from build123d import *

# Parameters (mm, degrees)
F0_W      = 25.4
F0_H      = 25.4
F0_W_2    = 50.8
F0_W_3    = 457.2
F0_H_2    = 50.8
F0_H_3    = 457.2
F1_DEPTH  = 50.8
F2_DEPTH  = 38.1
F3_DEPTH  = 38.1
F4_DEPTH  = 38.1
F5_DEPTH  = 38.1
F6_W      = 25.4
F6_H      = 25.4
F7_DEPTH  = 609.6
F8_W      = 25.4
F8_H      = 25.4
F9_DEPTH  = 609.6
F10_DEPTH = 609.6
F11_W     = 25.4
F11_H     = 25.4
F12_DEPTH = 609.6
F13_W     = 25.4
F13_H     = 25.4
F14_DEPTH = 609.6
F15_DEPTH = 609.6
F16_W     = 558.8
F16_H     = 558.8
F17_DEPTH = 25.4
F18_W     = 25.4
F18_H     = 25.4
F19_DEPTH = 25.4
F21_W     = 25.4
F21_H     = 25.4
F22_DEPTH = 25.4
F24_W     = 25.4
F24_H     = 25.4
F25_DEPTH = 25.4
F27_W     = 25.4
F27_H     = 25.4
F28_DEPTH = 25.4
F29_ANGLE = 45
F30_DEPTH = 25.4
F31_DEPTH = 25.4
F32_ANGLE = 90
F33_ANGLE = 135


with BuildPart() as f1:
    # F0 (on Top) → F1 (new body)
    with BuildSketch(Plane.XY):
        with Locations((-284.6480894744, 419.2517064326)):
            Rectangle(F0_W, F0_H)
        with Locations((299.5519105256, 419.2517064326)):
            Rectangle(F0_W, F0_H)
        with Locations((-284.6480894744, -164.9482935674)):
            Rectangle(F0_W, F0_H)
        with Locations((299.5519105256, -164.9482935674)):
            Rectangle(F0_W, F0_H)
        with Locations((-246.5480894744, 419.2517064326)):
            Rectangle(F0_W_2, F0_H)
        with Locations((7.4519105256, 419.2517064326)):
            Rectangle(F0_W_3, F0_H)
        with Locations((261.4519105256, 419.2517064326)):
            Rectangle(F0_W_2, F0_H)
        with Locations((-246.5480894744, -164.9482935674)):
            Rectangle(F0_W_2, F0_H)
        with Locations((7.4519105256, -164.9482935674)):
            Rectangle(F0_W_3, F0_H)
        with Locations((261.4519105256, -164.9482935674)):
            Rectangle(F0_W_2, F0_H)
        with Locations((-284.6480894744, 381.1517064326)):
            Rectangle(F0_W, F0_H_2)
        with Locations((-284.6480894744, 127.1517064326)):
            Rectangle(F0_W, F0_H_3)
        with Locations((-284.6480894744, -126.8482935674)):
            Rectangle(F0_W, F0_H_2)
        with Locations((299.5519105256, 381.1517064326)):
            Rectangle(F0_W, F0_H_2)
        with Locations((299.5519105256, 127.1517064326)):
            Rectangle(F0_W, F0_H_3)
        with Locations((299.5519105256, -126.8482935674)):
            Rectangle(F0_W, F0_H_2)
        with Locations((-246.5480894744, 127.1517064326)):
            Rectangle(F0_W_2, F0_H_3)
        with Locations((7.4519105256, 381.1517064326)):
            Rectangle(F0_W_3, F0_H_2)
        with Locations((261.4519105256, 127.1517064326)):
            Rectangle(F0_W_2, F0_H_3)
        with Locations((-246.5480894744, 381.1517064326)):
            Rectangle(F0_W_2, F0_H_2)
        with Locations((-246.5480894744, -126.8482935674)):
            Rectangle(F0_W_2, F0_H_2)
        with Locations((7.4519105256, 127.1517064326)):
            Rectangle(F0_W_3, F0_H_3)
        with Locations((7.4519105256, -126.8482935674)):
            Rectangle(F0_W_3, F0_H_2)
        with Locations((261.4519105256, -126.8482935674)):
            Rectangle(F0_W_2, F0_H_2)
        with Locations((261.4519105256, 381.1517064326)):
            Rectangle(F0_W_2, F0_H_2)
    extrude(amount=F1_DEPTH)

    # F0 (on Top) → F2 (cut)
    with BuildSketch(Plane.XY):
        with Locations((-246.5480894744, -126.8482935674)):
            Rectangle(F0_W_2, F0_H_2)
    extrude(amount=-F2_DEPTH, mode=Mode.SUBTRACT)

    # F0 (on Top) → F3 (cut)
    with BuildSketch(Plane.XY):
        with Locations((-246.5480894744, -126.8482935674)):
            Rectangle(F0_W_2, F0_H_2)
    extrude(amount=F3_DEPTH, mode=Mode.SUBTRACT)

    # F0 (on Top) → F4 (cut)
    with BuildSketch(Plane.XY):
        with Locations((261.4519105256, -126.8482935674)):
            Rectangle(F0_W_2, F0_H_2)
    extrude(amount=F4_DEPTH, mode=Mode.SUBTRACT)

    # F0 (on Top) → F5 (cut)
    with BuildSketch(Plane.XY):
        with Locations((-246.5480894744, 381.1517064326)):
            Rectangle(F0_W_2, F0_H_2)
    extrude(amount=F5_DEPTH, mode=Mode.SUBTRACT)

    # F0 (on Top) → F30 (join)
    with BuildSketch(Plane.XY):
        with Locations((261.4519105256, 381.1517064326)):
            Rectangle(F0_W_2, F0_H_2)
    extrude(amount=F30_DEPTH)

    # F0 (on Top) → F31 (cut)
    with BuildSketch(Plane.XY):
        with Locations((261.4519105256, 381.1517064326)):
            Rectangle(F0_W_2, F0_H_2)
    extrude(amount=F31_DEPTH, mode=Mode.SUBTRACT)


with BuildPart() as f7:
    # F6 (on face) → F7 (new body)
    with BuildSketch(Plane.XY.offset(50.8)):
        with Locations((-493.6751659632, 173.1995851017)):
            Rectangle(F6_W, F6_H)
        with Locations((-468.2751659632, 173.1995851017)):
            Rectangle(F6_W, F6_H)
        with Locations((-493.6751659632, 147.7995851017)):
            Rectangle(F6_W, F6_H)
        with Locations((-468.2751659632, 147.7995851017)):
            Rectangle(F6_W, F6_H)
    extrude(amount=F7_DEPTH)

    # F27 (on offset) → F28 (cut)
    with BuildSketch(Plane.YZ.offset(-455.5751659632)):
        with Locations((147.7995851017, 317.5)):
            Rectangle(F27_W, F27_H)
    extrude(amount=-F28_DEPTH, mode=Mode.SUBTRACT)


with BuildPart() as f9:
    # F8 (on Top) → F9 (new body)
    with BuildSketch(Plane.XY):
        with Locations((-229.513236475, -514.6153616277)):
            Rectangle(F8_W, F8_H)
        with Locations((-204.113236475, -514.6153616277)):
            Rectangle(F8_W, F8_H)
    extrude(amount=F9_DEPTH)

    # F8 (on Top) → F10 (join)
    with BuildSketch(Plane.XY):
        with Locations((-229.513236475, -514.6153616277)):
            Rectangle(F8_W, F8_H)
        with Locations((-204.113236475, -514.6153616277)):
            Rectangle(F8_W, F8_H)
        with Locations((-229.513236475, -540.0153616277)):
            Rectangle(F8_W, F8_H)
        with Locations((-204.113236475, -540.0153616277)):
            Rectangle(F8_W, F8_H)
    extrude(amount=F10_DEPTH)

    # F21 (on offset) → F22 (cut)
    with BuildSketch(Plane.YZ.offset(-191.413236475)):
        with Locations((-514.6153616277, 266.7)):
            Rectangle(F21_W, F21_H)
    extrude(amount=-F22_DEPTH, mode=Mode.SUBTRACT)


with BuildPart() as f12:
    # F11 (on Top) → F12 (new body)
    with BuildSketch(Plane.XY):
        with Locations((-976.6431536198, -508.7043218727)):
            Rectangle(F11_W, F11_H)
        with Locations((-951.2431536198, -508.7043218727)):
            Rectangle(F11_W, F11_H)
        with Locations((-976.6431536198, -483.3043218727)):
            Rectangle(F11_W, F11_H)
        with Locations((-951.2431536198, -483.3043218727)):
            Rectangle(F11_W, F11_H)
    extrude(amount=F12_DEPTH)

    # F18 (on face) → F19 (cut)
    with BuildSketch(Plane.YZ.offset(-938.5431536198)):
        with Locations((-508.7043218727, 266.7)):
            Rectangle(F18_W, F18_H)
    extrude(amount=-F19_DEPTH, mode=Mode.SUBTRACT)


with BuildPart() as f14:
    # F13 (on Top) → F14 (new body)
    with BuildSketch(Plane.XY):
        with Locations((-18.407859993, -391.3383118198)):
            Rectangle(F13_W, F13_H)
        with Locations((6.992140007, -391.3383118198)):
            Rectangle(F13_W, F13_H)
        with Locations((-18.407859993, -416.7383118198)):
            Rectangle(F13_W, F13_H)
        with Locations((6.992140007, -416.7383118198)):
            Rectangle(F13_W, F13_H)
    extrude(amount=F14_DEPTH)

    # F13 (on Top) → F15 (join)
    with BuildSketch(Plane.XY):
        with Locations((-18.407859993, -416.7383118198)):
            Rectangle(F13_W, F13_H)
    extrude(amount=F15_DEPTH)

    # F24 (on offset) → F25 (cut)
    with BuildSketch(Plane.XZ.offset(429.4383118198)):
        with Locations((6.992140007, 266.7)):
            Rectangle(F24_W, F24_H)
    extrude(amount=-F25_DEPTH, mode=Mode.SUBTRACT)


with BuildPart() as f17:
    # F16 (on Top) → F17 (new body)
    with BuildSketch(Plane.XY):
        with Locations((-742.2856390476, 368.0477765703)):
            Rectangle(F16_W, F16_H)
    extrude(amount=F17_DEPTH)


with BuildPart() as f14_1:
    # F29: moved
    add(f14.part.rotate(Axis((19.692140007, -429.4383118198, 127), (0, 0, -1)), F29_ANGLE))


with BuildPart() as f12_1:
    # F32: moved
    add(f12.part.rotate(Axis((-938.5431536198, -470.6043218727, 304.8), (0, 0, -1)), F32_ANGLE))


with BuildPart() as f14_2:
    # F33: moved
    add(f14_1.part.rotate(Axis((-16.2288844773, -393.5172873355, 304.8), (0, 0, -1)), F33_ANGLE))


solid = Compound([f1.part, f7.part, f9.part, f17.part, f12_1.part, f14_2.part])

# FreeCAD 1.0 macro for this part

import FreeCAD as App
import Part
import Sketcher
Q = App.Units.Quantity


def add_polygon(sketch, points):
    """Adds a closed chain of lines whose ends are joined by coincident constraints."""
    first, n = sketch.GeometryCount, len(points)
    for a, b in zip(points, points[1:] + points[:1]):
        sketch.addGeometry(Part.LineSegment(App.Vector(*a, 0), App.Vector(*b, 0)), False)
    for i in range(n):
        sketch.addConstraint(Sketcher.Constraint("Coincident", first + i, 2, first + (i + 1) % n, 1))

doc = App.newDocument("Part")
body = doc.addObject("PartDesign::Body", "Body")

# Sketch on XY plane
sketch1 = body.newObject("Sketcher::SketchObject", "Sketch")
sketch1.AttachmentSupport = (doc.getObject("XY_Plane"), [""])
sketch1.MapMode = "FlatFace"
add_polygon(sketch1, [(-297.348089, 431.951706), (-297.348089, -177.648294), (312.251911, -177.648294), (312.251911, 431.951706)])  # lines 0-3
sketch1.addConstraint(Sketcher.Constraint("Vertical", 0))
sketch1.addConstraint(Sketcher.Constraint("Horizontal", 1))
sketch1.addConstraint(Sketcher.Constraint("Vertical", 2))
sketch1.addConstraint(Sketcher.Constraint("Horizontal", 3))
sketch1.addConstraint(Sketcher.Constraint("Equal", 3, 0))
sketch1.addConstraint(Sketcher.Constraint("DistanceX", 1, 1, 1, 2, Q("24 in")))
sketch1.addConstraint(Sketcher.Constraint("DistanceX", 0, 2, -1, 1, 297.348089))
sketch1.addConstraint(Sketcher.Constraint("DistanceY", 0, 2, -1, 1, 177.648294))
pad1 = body.newObject("PartDesign::Pad", "Pad")
pad1.Profile = sketch1
pad1.Length = Q("2 in")

# Sketch on XY plane
sketch2 = body.newObject("Sketcher::SketchObject", "Sketch001")
sketch2.AttachmentSupport = (doc.getObject("XY_Plane"), [""])
sketch2.MapMode = "FlatFace"
add_polygon(sketch2, [(-271.948089, -101.448294), (-271.948089, -152.248294), (-221.148089, -152.248294), (-221.148089, -101.448294)])  # lines 0-3
sketch2.addConstraint(Sketcher.Constraint("Vertical", 0))
sketch2.addConstraint(Sketcher.Constraint("Horizontal", 1))
sketch2.addConstraint(Sketcher.Constraint("Vertical", 2))
sketch2.addConstraint(Sketcher.Constraint("Horizontal", 3))
sketch2.addConstraint(Sketcher.Constraint("Equal", 3, 0))
sketch2.addConstraint(Sketcher.Constraint("DistanceX", 1, 1, 1, 2, Q("2 in")))
sketch2.addConstraint(Sketcher.Constraint("DistanceX", 0, 2, -1, 1, 271.948089))
sketch2.addConstraint(Sketcher.Constraint("DistanceY", 0, 2, -1, 1, 152.248294))
pocket1 = body.newObject("PartDesign::Pocket", "Pocket")
pocket1.Profile = sketch2
pocket1.Length = Q("1.5 in")

# Sketch on XY plane
sketch3 = body.newObject("Sketcher::SketchObject", "Sketch002")
sketch3.AttachmentSupport = (doc.getObject("XY_Plane"), [""])
sketch3.MapMode = "FlatFace"
add_polygon(sketch3, [(-271.948089, -101.448294), (-271.948089, -152.248294), (-221.148089, -152.248294), (-221.148089, -101.448294)])  # lines 0-3
sketch3.addConstraint(Sketcher.Constraint("Vertical", 0))
sketch3.addConstraint(Sketcher.Constraint("Horizontal", 1))
sketch3.addConstraint(Sketcher.Constraint("Vertical", 2))
sketch3.addConstraint(Sketcher.Constraint("Horizontal", 3))
sketch3.addConstraint(Sketcher.Constraint("Equal", 3, 0))
sketch3.addConstraint(Sketcher.Constraint("DistanceX", 1, 1, 1, 2, Q("2 in")))
sketch3.addConstraint(Sketcher.Constraint("DistanceX", 0, 2, -1, 1, 271.948089))
sketch3.addConstraint(Sketcher.Constraint("DistanceY", 0, 2, -1, 1, 152.248294))
pocket2 = body.newObject("PartDesign::Pocket", "Pocket001")
pocket2.Profile = sketch3
pocket2.Length = Q("1.5 in")
pocket2.Reversed = True

# Sketch on XY plane
sketch4 = body.newObject("Sketcher::SketchObject", "Sketch003")
sketch4.AttachmentSupport = (doc.getObject("XY_Plane"), [""])
sketch4.MapMode = "FlatFace"
add_polygon(sketch4, [(236.051911, -101.448294), (236.051911, -152.248294), (286.851911, -152.248294), (286.851911, -101.448294)])  # lines 0-3
sketch4.addConstraint(Sketcher.Constraint("Vertical", 0))
sketch4.addConstraint(Sketcher.Constraint("Horizontal", 1))
sketch4.addConstraint(Sketcher.Constraint("Vertical", 2))
sketch4.addConstraint(Sketcher.Constraint("Horizontal", 3))
sketch4.addConstraint(Sketcher.Constraint("Equal", 3, 0))
sketch4.addConstraint(Sketcher.Constraint("DistanceX", 1, 1, 1, 2, Q("2 in")))
sketch4.addConstraint(Sketcher.Constraint("DistanceX", -1, 1, 0, 2, 236.051911))
sketch4.addConstraint(Sketcher.Constraint("DistanceY", 0, 2, -1, 1, 152.248294))
pocket3 = body.newObject("PartDesign::Pocket", "Pocket002")
pocket3.Profile = sketch4
pocket3.Length = Q("1.5 in")
pocket3.Reversed = True

# Sketch on XY plane
sketch5 = body.newObject("Sketcher::SketchObject", "Sketch004")
sketch5.AttachmentSupport = (doc.getObject("XY_Plane"), [""])
sketch5.MapMode = "FlatFace"
add_polygon(sketch5, [(-271.948089, 406.551706), (-271.948089, 355.751706), (-221.148089, 355.751706), (-221.148089, 406.551706)])  # lines 0-3
sketch5.addConstraint(Sketcher.Constraint("Vertical", 0))
sketch5.addConstraint(Sketcher.Constraint("Horizontal", 1))
sketch5.addConstraint(Sketcher.Constraint("Vertical", 2))
sketch5.addConstraint(Sketcher.Constraint("Horizontal", 3))
sketch5.addConstraint(Sketcher.Constraint("Equal", 3, 0))
sketch5.addConstraint(Sketcher.Constraint("DistanceX", 1, 1, 1, 2, Q("2 in")))
sketch5.addConstraint(Sketcher.Constraint("DistanceX", 0, 2, -1, 1, 271.948089))
sketch5.addConstraint(Sketcher.Constraint("DistanceY", -1, 1, 0, 2, 355.751706))
pocket4 = body.newObject("PartDesign::Pocket", "Pocket003")
pocket4.Profile = sketch5
pocket4.Length = Q("1.5 in")
pocket4.Reversed = True

# Sketch on XY plane
sketch6 = body.newObject("Sketcher::SketchObject", "Sketch005")
sketch6.AttachmentSupport = (doc.getObject("XY_Plane"), [""])
sketch6.MapMode = "FlatFace"
add_polygon(sketch6, [(236.051911, 406.551706), (236.051911, 355.751706), (286.851911, 355.751706), (286.851911, 406.551706)])  # lines 0-3
sketch6.addConstraint(Sketcher.Constraint("Vertical", 0))
sketch6.addConstraint(Sketcher.Constraint("Horizontal", 1))
sketch6.addConstraint(Sketcher.Constraint("Vertical", 2))
sketch6.addConstraint(Sketcher.Constraint("Horizontal", 3))
sketch6.addConstraint(Sketcher.Constraint("Equal", 3, 0))
sketch6.addConstraint(Sketcher.Constraint("DistanceX", 1, 1, 1, 2, Q("2 in")))
sketch6.addConstraint(Sketcher.Constraint("DistanceX", -1, 1, 0, 2, 236.051911))
sketch6.addConstraint(Sketcher.Constraint("DistanceY", -1, 1, 0, 2, 355.751706))
pad2 = body.newObject("PartDesign::Pad", "Pad001")
pad2.Profile = sketch6
pad2.Length = Q("1 in")

# Sketch on XY plane
sketch7 = body.newObject("Sketcher::SketchObject", "Sketch006")
sketch7.AttachmentSupport = (doc.getObject("XY_Plane"), [""])
sketch7.MapMode = "FlatFace"
add_polygon(sketch7, [(236.051911, 406.551706), (236.051911, 355.751706), (286.851911, 355.751706), (286.851911, 406.551706)])  # lines 0-3
sketch7.addConstraint(Sketcher.Constraint("Vertical", 0))
sketch7.addConstraint(Sketcher.Constraint("Horizontal", 1))
sketch7.addConstraint(Sketcher.Constraint("Vertical", 2))
sketch7.addConstraint(Sketcher.Constraint("Horizontal", 3))
sketch7.addConstraint(Sketcher.Constraint("Equal", 3, 0))
sketch7.addConstraint(Sketcher.Constraint("DistanceX", 1, 1, 1, 2, Q("2 in")))
sketch7.addConstraint(Sketcher.Constraint("DistanceX", -1, 1, 0, 2, 236.051911))
sketch7.addConstraint(Sketcher.Constraint("DistanceY", -1, 1, 0, 2, 355.751706))
pocket5 = body.newObject("PartDesign::Pocket", "Pocket004")
pocket5.Profile = sketch7
pocket5.Length = Q("1 in")
pocket5.Reversed = True
body2 = doc.addObject("PartDesign::Body", "Body001")

# Sketch on XY plane
sketch8 = body2.newObject("Sketcher::SketchObject", "Sketch007")
sketch8.AttachmentSupport = (doc.getObject("XY_Plane001"), [""])
sketch8.MapMode = "FlatFace"
sketch8.AttachmentOffset = App.Placement(App.Vector(0, 0, 2 * 25.4), App.Rotation())
add_polygon(sketch8, [(-506.375166, 185.899585), (-506.375166, 135.099585), (-455.575166, 135.099585), (-455.575166, 185.899585)])  # lines 0-3
sketch8.addConstraint(Sketcher.Constraint("Vertical", 0))
sketch8.addConstraint(Sketcher.Constraint("Horizontal", 1))
sketch8.addConstraint(Sketcher.Constraint("Vertical", 2))
sketch8.addConstraint(Sketcher.Constraint("Horizontal", 3))
sketch8.addConstraint(Sketcher.Constraint("Equal", 3, 0))
sketch8.addConstraint(Sketcher.Constraint("DistanceX", 1, 1, 1, 2, Q("2 in")))
sketch8.addConstraint(Sketcher.Constraint("DistanceX", 0, 2, -1, 1, 506.375166))
sketch8.addConstraint(Sketcher.Constraint("DistanceY", -1, 1, 0, 2, 135.099585))
pad3 = body2.newObject("PartDesign::Pad", "Pad002")
pad3.Profile = sketch8
pad3.Length = Q("24 in")

# Sketch on YZ plane
sketch9 = body2.newObject("Sketcher::SketchObject", "Sketch008")
sketch9.AttachmentSupport = (doc.getObject("YZ_Plane001"), [""])
sketch9.MapMode = "FlatFace"
sketch9.AttachmentOffset = App.Placement(App.Vector(0, 0, -455.575166), App.Rotation())
add_polygon(sketch9, [(135.099585, 330.2), (135.099585, 304.8), (160.499585, 304.8), (160.499585, 330.2)])  # lines 0-3
sketch9.addConstraint(Sketcher.Constraint("Vertical", 0))
sketch9.addConstraint(Sketcher.Constraint("Horizontal", 1))
sketch9.addConstraint(Sketcher.Constraint("Vertical", 2))
sketch9.addConstraint(Sketcher.Constraint("Horizontal", 3))
sketch9.addConstraint(Sketcher.Constraint("Equal", 3, 0))
sketch9.addConstraint(Sketcher.Constraint("DistanceX", 1, 1, 1, 2, Q("1 in")))
sketch9.addConstraint(Sketcher.Constraint("DistanceY", -1, 1, 0, 2, Q("12 in")))
sketch9.addConstraint(Sketcher.Constraint("DistanceX", -1, 1, 0, 2, 135.099585))
pocket6 = body2.newObject("PartDesign::Pocket", "Pocket005")
pocket6.Profile = sketch9
pocket6.Length = Q("1 in")
body3 = doc.addObject("PartDesign::Body", "Body002")

# Sketch on XY plane
sketch10 = body3.newObject("Sketcher::SketchObject", "Sketch009")
sketch10.AttachmentSupport = (doc.getObject("XY_Plane002"), [""])
sketch10.MapMode = "FlatFace"
add_polygon(sketch10, [(-242.213236, -501.915362), (-242.213236, -527.315362), (-191.413236, -527.315362), (-191.413236, -501.915362)])  # lines 0-3
sketch10.addConstraint(Sketcher.Constraint("Vertical", 0))
sketch10.addConstraint(Sketcher.Constraint("Horizontal", 1))
sketch10.addConstraint(Sketcher.Constraint("Vertical", 2))
sketch10.addConstraint(Sketcher.Constraint("Horizontal", 3))
sketch10.addConstraint(Sketcher.Constraint("DistanceX", 1, 1, 1, 2, Q("2 in")))
sketch10.addConstraint(Sketcher.Constraint("DistanceY", 0, 2, 0, 1, Q("1 in")))
sketch10.addConstraint(Sketcher.Constraint("DistanceY", 0, 2, -1, 1, 527.315362))
sketch10.addConstraint(Sketcher.Constraint("DistanceX", 0, 2, -1, 1, 242.213236))
pad4 = body3.newObject("PartDesign::Pad", "Pad003")
pad4.Profile = sketch10
pad4.Length = Q("24 in")

# Sketch on XY plane
sketch11 = body3.newObject("Sketcher::SketchObject", "Sketch010")
sketch11.AttachmentSupport = (doc.getObject("XY_Plane002"), [""])
sketch11.MapMode = "FlatFace"
add_polygon(sketch11, [(-242.213236, -501.915362), (-242.213236, -552.715362), (-191.413236, -552.715362), (-191.413236, -501.915362)])  # lines 0-3
sketch11.addConstraint(Sketcher.Constraint("Vertical", 0))
sketch11.addConstraint(Sketcher.Constraint("Horizontal", 1))
sketch11.addConstraint(Sketcher.Constraint("Vertical", 2))
sketch11.addConstraint(Sketcher.Constraint("Horizontal", 3))
sketch11.addConstraint(Sketcher.Constraint("Equal", 3, 0))
sketch11.addConstraint(Sketcher.Constraint("DistanceX", 1, 1, 1, 2, Q("2 in")))
sketch11.addConstraint(Sketcher.Constraint("DistanceY", 0, 2, -1, 1, 552.715362))
sketch11.addConstraint(Sketcher.Constraint("DistanceX", 0, 2, -1, 1, 242.213236))
pad5 = body3.newObject("PartDesign::Pad", "Pad004")
pad5.Profile = sketch11
pad5.Length = Q("24 in")

# Sketch on YZ plane
sketch12 = body3.newObject("Sketcher::SketchObject", "Sketch011")
sketch12.AttachmentSupport = (doc.getObject("YZ_Plane002"), [""])
sketch12.MapMode = "FlatFace"
sketch12.AttachmentOffset = App.Placement(App.Vector(0, 0, -191.413236), App.Rotation())
add_polygon(sketch12, [(-527.315362, 279.4), (-527.315362, 254), (-501.915362, 254), (-501.915362, 279.4)])  # lines 0-3
sketch12.addConstraint(Sketcher.Constraint("Vertical", 0))
sketch12.addConstraint(Sketcher.Constraint("Horizontal", 1))
sketch12.addConstraint(Sketcher.Constraint("Vertical", 2))
sketch12.addConstraint(Sketcher.Constraint("Horizontal", 3))
sketch12.addConstraint(Sketcher.Constraint("Equal", 3, 0))
sketch12.addConstraint(Sketcher.Constraint("DistanceX", 1, 1, 1, 2, Q("1 in")))
sketch12.addConstraint(Sketcher.Constraint("DistanceY", -1, 1, 0, 2, Q("10 in")))
sketch12.addConstraint(Sketcher.Constraint("DistanceX", 0, 2, -1, 1, 527.315362))
pocket7 = body3.newObject("PartDesign::Pocket", "Pocket006")
pocket7.Profile = sketch12
pocket7.Length = Q("1 in")
body4 = doc.addObject("PartDesign::Body", "Body003")

# Sketch on XY plane
sketch13 = body4.newObject("Sketcher::SketchObject", "Sketch012")
sketch13.AttachmentSupport = (doc.getObject("XY_Plane003"), [""])
sketch13.MapMode = "FlatFace"
add_polygon(sketch13, [(-989.343154, -521.404322), (-938.543154, -521.404322), (-938.543154, -470.604322), (-989.343154, -470.604322)])  # lines 0-3
sketch13.addConstraint(Sketcher.Constraint("Horizontal", 0))
sketch13.addConstraint(Sketcher.Constraint("Vertical", 1))
sketch13.addConstraint(Sketcher.Constraint("Horizontal", 2))
sketch13.addConstraint(Sketcher.Constraint("Vertical", 3))
sketch13.addConstraint(Sketcher.Constraint("Equal", 2, 1))
sketch13.addConstraint(Sketcher.Constraint("DistanceX", 0, 1, 0, 2, Q("2 in")))
sketch13.addConstraint(Sketcher.Constraint("DistanceY", 0, 2, -1, 1, 521.404322))
sketch13.addConstraint(Sketcher.Constraint("DistanceX", 0, 2, -1, 1, 938.543154))
pad6 = body4.newObject("PartDesign::Pad", "Pad005")
pad6.Profile = sketch13
pad6.Length = Q("24 in")

# Sketch on YZ plane
sketch14 = body4.newObject("Sketcher::SketchObject", "Sketch013")
sketch14.AttachmentSupport = (doc.getObject("YZ_Plane003"), [""])
sketch14.MapMode = "FlatFace"
sketch14.AttachmentOffset = App.Placement(App.Vector(0, 0, -938.543154), App.Rotation())
add_polygon(sketch14, [(-521.404322, 279.4), (-521.404322, 254), (-496.004322, 254), (-496.004322, 279.4)])  # lines 0-3
sketch14.addConstraint(Sketcher.Constraint("Vertical", 0))
sketch14.addConstraint(Sketcher.Constraint("Horizontal", 1))
sketch14.addConstraint(Sketcher.Constraint("Vertical", 2))
sketch14.addConstraint(Sketcher.Constraint("Horizontal", 3))
sketch14.addConstraint(Sketcher.Constraint("Equal", 3, 0))
sketch14.addConstraint(Sketcher.Constraint("DistanceX", 1, 1, 1, 2, Q("1 in")))
sketch14.addConstraint(Sketcher.Constraint("DistanceY", -1, 1, 0, 2, Q("10 in")))
sketch14.addConstraint(Sketcher.Constraint("DistanceX", 0, 2, -1, 1, 521.404322))
pocket8 = body4.newObject("PartDesign::Pocket", "Pocket007")
pocket8.Profile = sketch14
pocket8.Length = Q("1 in")
body5 = doc.addObject("PartDesign::Body", "Body004")

# Sketch on XY plane
sketch15 = body5.newObject("Sketcher::SketchObject", "Sketch014")
sketch15.AttachmentSupport = (doc.getObject("XY_Plane004"), [""])
sketch15.MapMode = "FlatFace"
add_polygon(sketch15, [(-31.10786, -378.638312), (-31.10786, -429.438312), (19.69214, -429.438312), (19.69214, -378.638312)])  # lines 0-3
sketch15.addConstraint(Sketcher.Constraint("Vertical", 0))
sketch15.addConstraint(Sketcher.Constraint("Horizontal", 1))
sketch15.addConstraint(Sketcher.Constraint("Vertical", 2))
sketch15.addConstraint(Sketcher.Constraint("Horizontal", 3))
sketch15.addConstraint(Sketcher.Constraint("Equal", 3, 0))
sketch15.addConstraint(Sketcher.Constraint("DistanceX", 1, 1, 1, 2, Q("2 in")))
sketch15.addConstraint(Sketcher.Constraint("DistanceX", 0, 2, -1, 1, 31.10786))
sketch15.addConstraint(Sketcher.Constraint("DistanceY", 0, 2, -1, 1, 429.438312))
pad7 = body5.newObject("PartDesign::Pad", "Pad006")
pad7.Profile = sketch15
pad7.Length = Q("24 in")

# Sketch on XY plane
sketch16 = body5.newObject("Sketcher::SketchObject", "Sketch015")
sketch16.AttachmentSupport = (doc.getObject("XY_Plane004"), [""])
sketch16.MapMode = "FlatFace"
add_polygon(sketch16, [(-31.10786, -404.038312), (-31.10786, -429.438312), (-5.70786, -429.438312), (-5.70786, -404.038312)])  # lines 0-3
sketch16.addConstraint(Sketcher.Constraint("Vertical", 0))
sketch16.addConstraint(Sketcher.Constraint("Horizontal", 1))
sketch16.addConstraint(Sketcher.Constraint("Vertical", 2))
sketch16.addConstraint(Sketcher.Constraint("Horizontal", 3))
sketch16.addConstraint(Sketcher.Constraint("Equal", 3, 0))
sketch16.addConstraint(Sketcher.Constraint("DistanceX", 1, 1, 1, 2, Q("1 in")))
sketch16.addConstraint(Sketcher.Constraint("DistanceX", 0, 2, -1, 1, 31.10786))
sketch16.addConstraint(Sketcher.Constraint("DistanceY", 0, 2, -1, 1, 429.438312))
pad8 = body5.newObject("PartDesign::Pad", "Pad007")
pad8.Profile = sketch16
pad8.Length = Q("24 in")

# Sketch on XZ plane
sketch17 = body5.newObject("Sketcher::SketchObject", "Sketch016")
sketch17.AttachmentSupport = (doc.getObject("XZ_Plane004"), [""])
sketch17.MapMode = "FlatFace"
sketch17.AttachmentOffset = App.Placement(App.Vector(0, 0, 429.438312), App.Rotation())
add_polygon(sketch17, [(-5.70786, 279.4), (-5.70786, 254), (19.69214, 254), (19.69214, 279.4)])  # lines 0-3
sketch17.addConstraint(Sketcher.Constraint("Vertical", 0))
sketch17.addConstraint(Sketcher.Constraint("Horizontal", 1))
sketch17.addConstraint(Sketcher.Constraint("Vertical", 2))
sketch17.addConstraint(Sketcher.Constraint("Horizontal", 3))
sketch17.addConstraint(Sketcher.Constraint("Equal", 3, 0))
sketch17.addConstraint(Sketcher.Constraint("DistanceX", 1, 1, 1, 2, Q("1 in")))
sketch17.addConstraint(Sketcher.Constraint("DistanceY", -1, 1, 0, 2, Q("10 in")))
sketch17.addConstraint(Sketcher.Constraint("DistanceX", 0, 2, -1, 1, 5.70786))
pocket9 = body5.newObject("PartDesign::Pocket", "Pocket008")
pocket9.Profile = sketch17
pocket9.Length = Q("1 in")
body6 = doc.addObject("PartDesign::Body", "Body005")

# Sketch on XY plane
sketch18 = body6.newObject("Sketcher::SketchObject", "Sketch017")
sketch18.AttachmentSupport = (doc.getObject("XY_Plane005"), [""])
sketch18.MapMode = "FlatFace"
add_polygon(sketch18, [(-1021.685639, 647.447777), (-1021.685639, 88.647777), (-462.885639, 88.647777), (-462.885639, 647.447777)])  # lines 0-3
sketch18.addConstraint(Sketcher.Constraint("Vertical", 0))
sketch18.addConstraint(Sketcher.Constraint("Horizontal", 1))
sketch18.addConstraint(Sketcher.Constraint("Vertical", 2))
sketch18.addConstraint(Sketcher.Constraint("Horizontal", 3))
sketch18.addConstraint(Sketcher.Constraint("Equal", 3, 0))
sketch18.addConstraint(Sketcher.Constraint("DistanceX", 1, 1, 1, 2, Q("22 in")))
sketch18.addConstraint(Sketcher.Constraint("DistanceX", 0, 2, -1, 1, 1021.685639))
sketch18.addConstraint(Sketcher.Constraint("DistanceY", -1, 1, 0, 2, 88.647777))
pad9 = body6.newObject("PartDesign::Pad", "Pad008")
pad9.Profile = sketch18
pad9.Length = Q("1 in")
body7 = doc.addObject("PartDesign::Body", "Body006")
doc.recompute()

body5.Placement = App.Placement(App.Vector(309.426437, -111.855124, 0), App.Rotation(App.Vector(0, 0, -1), 45))
boolean = body7.newObject("PartDesign::Boolean", "Boolean")
boolean.Type = "Fuse"
boolean.addObjects([body5])
body8 = doc.addObject("PartDesign::Body", "Body007")
doc.recompute()

body4.Placement = App.Placement(App.Vector(-467.938832, -1409.147475, 0), App.Rotation(App.Vector(0, 0, -1), 90))
boolean2 = body8.newObject("PartDesign::Boolean", "Boolean001")
boolean2.Type = "Fuse"
boolean2.addObjects([body4])
body9 = doc.addObject("PartDesign::Body", "Body008")
doc.recompute()

body7.Placement = App.Placement(App.Vector(250.554304, -683.251584, 0), App.Rotation(App.Vector(0, 0, -1), 135))
boolean3 = body9.newObject("PartDesign::Boolean", "Boolean002")
boolean3.Type = "Fuse"
boolean3.addObjects([body7])

doc.recompute()
